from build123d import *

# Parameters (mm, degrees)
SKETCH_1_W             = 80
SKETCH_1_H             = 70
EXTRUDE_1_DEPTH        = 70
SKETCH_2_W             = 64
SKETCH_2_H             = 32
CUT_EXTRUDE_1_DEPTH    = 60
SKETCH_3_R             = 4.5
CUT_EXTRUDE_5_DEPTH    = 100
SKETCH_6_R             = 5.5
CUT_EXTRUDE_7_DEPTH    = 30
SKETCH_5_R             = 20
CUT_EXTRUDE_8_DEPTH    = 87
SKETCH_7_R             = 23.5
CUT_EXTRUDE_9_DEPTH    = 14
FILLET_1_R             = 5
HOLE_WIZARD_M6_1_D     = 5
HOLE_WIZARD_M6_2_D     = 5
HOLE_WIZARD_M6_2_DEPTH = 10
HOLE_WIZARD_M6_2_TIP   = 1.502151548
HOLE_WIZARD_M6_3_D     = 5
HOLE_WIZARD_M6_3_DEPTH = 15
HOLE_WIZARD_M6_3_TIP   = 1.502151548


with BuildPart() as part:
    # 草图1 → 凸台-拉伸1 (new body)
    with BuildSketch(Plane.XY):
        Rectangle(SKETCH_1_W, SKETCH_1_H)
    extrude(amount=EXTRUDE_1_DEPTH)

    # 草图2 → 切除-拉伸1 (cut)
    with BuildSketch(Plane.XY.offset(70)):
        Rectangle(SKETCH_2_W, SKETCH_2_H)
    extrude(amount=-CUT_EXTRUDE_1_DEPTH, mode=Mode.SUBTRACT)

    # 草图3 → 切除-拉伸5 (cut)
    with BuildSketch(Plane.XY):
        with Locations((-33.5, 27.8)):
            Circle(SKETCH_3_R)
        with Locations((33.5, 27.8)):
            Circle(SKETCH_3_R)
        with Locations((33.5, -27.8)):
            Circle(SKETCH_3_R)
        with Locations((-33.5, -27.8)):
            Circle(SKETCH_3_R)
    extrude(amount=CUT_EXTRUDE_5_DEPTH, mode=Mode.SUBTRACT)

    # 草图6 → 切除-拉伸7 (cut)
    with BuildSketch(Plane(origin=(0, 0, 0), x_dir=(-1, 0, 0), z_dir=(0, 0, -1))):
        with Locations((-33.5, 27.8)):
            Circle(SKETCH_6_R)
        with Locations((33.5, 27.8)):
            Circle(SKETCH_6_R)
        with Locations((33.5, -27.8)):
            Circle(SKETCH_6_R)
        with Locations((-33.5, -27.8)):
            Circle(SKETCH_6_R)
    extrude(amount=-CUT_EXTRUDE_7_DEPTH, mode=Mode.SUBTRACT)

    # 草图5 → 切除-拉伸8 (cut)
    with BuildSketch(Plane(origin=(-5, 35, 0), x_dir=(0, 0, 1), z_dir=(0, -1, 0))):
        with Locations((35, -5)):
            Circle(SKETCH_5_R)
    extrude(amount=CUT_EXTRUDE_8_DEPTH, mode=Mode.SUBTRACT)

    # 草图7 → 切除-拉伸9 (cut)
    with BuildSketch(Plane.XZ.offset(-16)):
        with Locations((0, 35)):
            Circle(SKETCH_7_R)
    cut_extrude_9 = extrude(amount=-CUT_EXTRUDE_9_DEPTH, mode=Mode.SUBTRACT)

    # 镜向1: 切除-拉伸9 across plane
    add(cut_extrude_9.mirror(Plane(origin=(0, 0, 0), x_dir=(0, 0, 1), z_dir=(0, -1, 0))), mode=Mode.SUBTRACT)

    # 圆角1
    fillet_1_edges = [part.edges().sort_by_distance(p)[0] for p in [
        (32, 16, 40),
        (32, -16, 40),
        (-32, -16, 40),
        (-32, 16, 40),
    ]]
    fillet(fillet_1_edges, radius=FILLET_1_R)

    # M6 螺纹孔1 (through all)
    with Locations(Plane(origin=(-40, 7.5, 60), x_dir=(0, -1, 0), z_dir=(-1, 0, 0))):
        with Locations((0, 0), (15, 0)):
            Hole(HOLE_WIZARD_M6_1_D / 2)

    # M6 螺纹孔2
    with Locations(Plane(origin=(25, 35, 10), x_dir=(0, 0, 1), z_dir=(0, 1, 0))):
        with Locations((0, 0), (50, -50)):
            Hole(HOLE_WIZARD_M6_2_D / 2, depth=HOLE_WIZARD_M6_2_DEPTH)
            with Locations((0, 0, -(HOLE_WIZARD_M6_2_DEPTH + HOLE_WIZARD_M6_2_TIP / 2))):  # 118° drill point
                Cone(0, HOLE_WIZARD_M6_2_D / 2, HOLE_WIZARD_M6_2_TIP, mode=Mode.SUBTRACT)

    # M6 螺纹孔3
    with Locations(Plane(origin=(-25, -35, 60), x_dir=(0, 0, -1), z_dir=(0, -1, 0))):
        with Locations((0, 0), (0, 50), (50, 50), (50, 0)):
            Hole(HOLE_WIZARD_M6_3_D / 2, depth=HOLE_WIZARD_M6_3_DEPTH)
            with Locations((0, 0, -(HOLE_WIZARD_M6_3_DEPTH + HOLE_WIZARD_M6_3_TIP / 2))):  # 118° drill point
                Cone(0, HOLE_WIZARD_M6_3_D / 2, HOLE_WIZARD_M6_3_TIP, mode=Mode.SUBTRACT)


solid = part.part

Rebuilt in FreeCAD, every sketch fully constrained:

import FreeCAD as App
import Part
import Sketcher
from FreeCAD import Vector


def edges_at(feature, points):
    """Names of the edges that pass closest to the given points."""
    edges = feature.Shape.Edges
    near = lambda p: min(range(len(edges)), key=lambda i: edges[i].distToShape(Part.Vertex(*p))[0])
    return sorted({f"Edge{near(p) + 1}" for p in points})


def add_polygon(sketch, points):
    """Adds a closed chain of lines whose ends are joined by coincident constraints."""
    first, n = sketch.GeometryCount, len(points)
    for a, b in zip(points, points[1:] + points[:1]):
        sketch.addGeometry(Part.LineSegment(App.Vector(*a, 0), App.Vector(*b, 0)), False)
    for i in range(n):
        sketch.addConstraint(Sketcher.Constraint("Coincident", first + i, 2, first + (i + 1) % n, 1))

doc = App.newDocument("Part")
body = doc.addObject("PartDesign::Body", "Body")

# Sketch on XY plane
sketch1 = body.newObject("Sketcher::SketchObject", "Sketch")
sketch1.AttachmentSupport = (doc.getObject("XY_Plane"), [""])
sketch1.MapMode = "FlatFace"
add_polygon(sketch1, [(-40, 35), (-40, -35), (40, -35), (40, 35)])  # lines 0-3
sketch1.addConstraint([
    Sketcher.Constraint("Vertical", 0),
    Sketcher.Constraint("Horizontal", 1),
    Sketcher.Constraint("Vertical", 2),
    Sketcher.Constraint("Horizontal", 3),
    Sketcher.Constraint("Symmetric", 0, 2, 2, 2, -1, 1),
    Sketcher.Constraint("DistanceX", 1, 1, 1, 2, 80.0),
    Sketcher.Constraint("DistanceY", 0, 2, 0, 1, 70.0),
])
pad1 = body.newObject("PartDesign::Pad", "Pad")
pad1.Profile = sketch1
pad1.Length = 70

# Sketch on XY plane
sketch2 = body.newObject("Sketcher::SketchObject", "Sketch001")
sketch2.AttachmentSupport = (doc.getObject("XY_Plane"), [""])
sketch2.MapMode = "FlatFace"
sketch2.AttachmentOffset = App.Placement(Vector(0, 0, 70), App.Rotation())
add_polygon(sketch2, [(-32, 16), (-32, -16), (32, -16), (32, 16)])  # lines 0-3
sketch2.addConstraint([
    Sketcher.Constraint("Vertical", 0),
    Sketcher.Constraint("Horizontal", 1),
    Sketcher.Constraint("Vertical", 2),
    Sketcher.Constraint("Horizontal", 3),
    Sketcher.Constraint("Symmetric", 0, 2, 2, 2, -1, 1),
    Sketcher.Constraint("DistanceX", 1, 1, 1, 2, 64.0),
    Sketcher.Constraint("DistanceY", 0, 2, 0, 1, 32.0),
])
pocket1 = body.newObject("PartDesign::Pocket", "Pocket")
pocket1.Profile = sketch2
pocket1.Length = 60

# Sketch on XY plane
sketch3 = body.newObject("Sketcher::SketchObject", "Sketch002")
sketch3.AttachmentSupport = (doc.getObject("XY_Plane"), [""])
sketch3.MapMode = "FlatFace"
sketch3.addGeometry([
    Part.Circle(Vector(-33.5, 27.8, 0), Vector(0, 0, 1), 4.5),
    Part.Circle(Vector(33.5, 27.8, 0), Vector(0, 0, 1), 4.5),
    Part.Circle(Vector(33.5, -27.8, 0), Vector(0, 0, 1), 4.5),
    Part.Circle(Vector(-33.5, -27.8, 0), Vector(0, 0, 1), 4.5),
], False)
sketch3.addConstraint([
    Sketcher.Constraint("Equal", 0, 1),
    Sketcher.Constraint("Equal", 1, 2),
    Sketcher.Constraint("Equal", 2, 3),
    Sketcher.Constraint("Symmetric", 0, 3, 2, 3, -1, 1),
    Sketcher.Constraint("Symmetric", 1, 3, 3, 3, -1, 1),
    Sketcher.Constraint("Symmetric", 0, 3, 1, 3, -2),
    Sketcher.Constraint("Diameter", 0, 9.0),
    Sketcher.Constraint("DistanceX", 0, 3, 1, 3, 67.0),
    Sketcher.Constraint("DistanceY", -1, 1, 0, 3, 27.8),
])
pocket2 = body.newObject("PartDesign::Pocket", "Pocket001")
pocket2.Profile = sketch3
pocket2.Length = 100
pocket2.Reversed = True

# Sketch on XY plane
sketch4 = body.newObject("Sketcher::SketchObject", "Sketch003")
sketch4.AttachmentSupport = (doc.getObject("XY_Plane"), [""])
sketch4.MapMode = "FlatFace"
sketch4.addGeometry([
    Part.Circle(Vector(34, 28, 0), Vector(0, 0, 1), 6),
    Part.Circle(Vector(-34, 28, 0), Vector(0, 0, 1), 6),
    Part.Circle(Vector(-34, -28, 0), Vector(0, 0, 1), 6),
    Part.Circle(Vector(34, -28, 0), Vector(0, 0, 1), 6),
], False)
sketch4.addConstraint([
    Sketcher.Constraint("Equal", 0, 1),
    Sketcher.Constraint("Equal", 1, 2),
    Sketcher.Constraint("Equal", 2, 3),
    Sketcher.Constraint("Symmetric", 0, 3, 2, 3, -1, 1),
    Sketcher.Constraint("Symmetric", 1, 3, 3, 3, -1, 1),
    Sketcher.Constraint("Symmetric", 0, 3, 1, 3, -2),
    Sketcher.Constraint("Diameter", 0, 11.0),
    Sketcher.Constraint("DistanceX", 1, 3, 0, 3, 67.0),
    Sketcher.Constraint("DistanceY", -1, 1, 0, 3, 27.8),
])
pocket3 = body.newObject("PartDesign::Pocket", "Pocket002")
pocket3.Profile = sketch4
pocket3.Length = 30
pocket3.Reversed = True

# Sketch on XZ plane
sketch5 = body.newObject("Sketcher::SketchObject", "Sketch004")
sketch5.AttachmentSupport = (doc.getObject("XZ_Plane"), [""])
sketch5.MapMode = "FlatFace"
sketch5.AttachmentOffset = App.Placement(Vector(0, 0, -35), App.Rotation())
sketch5.addGeometry(Part.Circle(Vector(0, 35, 0), Vector(0, 0, 1), 20), False)
sketch5.addConstraint([
    Sketcher.Constraint("PointOnObject", 0, 3, -2),
    Sketcher.Constraint("Diameter", 0, 40.0),
    Sketcher.Constraint("DistanceY", -1, 1, 0, 3, 35.0),
])
pocket4 = body.newObject("PartDesign::Pocket", "Pocket003")
pocket4.Profile = sketch5
pocket4.Length = 87
pocket4.Reversed = True

# Sketch on XZ plane
sketch6 = body.newObject("Sketcher::SketchObject", "Sketch005")
sketch6.AttachmentSupport = (doc.getObject("XZ_Plane"), [""])
sketch6.MapMode = "FlatFace"
sketch6.AttachmentOffset = App.Placement(Vector(0, 0, -16), App.Rotation())
sketch6.addGeometry(Part.Circle(Vector(0, 35, 0), Vector(0, 0, 1), 24), False)
sketch6.addConstraint([
    Sketcher.Constraint("PointOnObject", 0, 3, -2),
    Sketcher.Constraint("Diameter", 0, 47.0),
    Sketcher.Constraint("DistanceY", -1, 1, 0, 3, 35.0),
])
pocket5 = body.newObject("PartDesign::Pocket", "Pocket004")
pocket5.Profile = sketch6
pocket5.Length = 14
doc.recompute()

mirrored = body.newObject("PartDesign::Mirrored", "Mirrored")
mirrored.Originals = [pocket5]
mirrored.MirrorPlane = (doc.getObject("XZ_Plane"), [""])
body.Tip = mirrored
doc.recompute()

fillet = body.newObject("PartDesign::Fillet", "Fillet")
fillet.Base = (mirrored, edges_at(mirrored, [
    (32, 16, 40),
    (32, -16, 40),
    (-32, -16, 40),
    (-32, 16, 40),
]))
fillet.Radius = 5

# Sketch on YZ plane
sketch7 = body.newObject("Sketcher::SketchObject", "Sketch006")
sketch7.AttachmentSupport = (doc.getObject("YZ_Plane"), [""])
sketch7.MapMode = "FlatFace"
sketch7.AttachmentOffset = App.Placement(Vector(0, 0, -40), App.Rotation())
sketch7.addGeometry([
    Part.Circle(Vector(7.5, 60, 0), Vector(0, 0, 1), 2.5),
    Part.Circle(Vector(-7.5, 60, 0), Vector(0, 0, 1), 2.5),
], False)
sketch7.addConstraint([
    Sketcher.Constraint("Equal", 0, 1),
    Sketcher.Constraint("Symmetric", 0, 3, 1, 3, -2),
    Sketcher.Constraint("Diameter", 0, 5.0),
    Sketcher.Constraint("DistanceY", -1, 1, 0, 3, 60.0),
    Sketcher.Constraint("DistanceX", 1, 3, 0, 3, 15.0),
])
doc.recompute()
hole = body.newObject("PartDesign::Hole", "Hole")
hole.Profile = sketch7
hole.ThreadType = "None"
hole.Diameter = 5
hole.DepthType = "ThroughAll"
hole.Reversed = True

# Sketch on XZ plane
sketch8 = body.newObject("Sketcher::SketchObject", "Sketch007")
sketch8.AttachmentSupport = (doc.getObject("XZ_Plane"), [""])
sketch8.MapMode = "FlatFace"
sketch8.AttachmentOffset = App.Placement(Vector(0, 0, -35), App.Rotation())
sketch8.addGeometry([
    Part.Circle(Vector(25, 10, 0), Vector(0, 0, 1), 2.5),
    Part.Circle(Vector(-25, 60, 0), Vector(0, 0, 1), 2.5),
], False)
sketch8.addConstraint([
    Sketcher.Constraint("Equal", 0, 1),
    Sketcher.Constraint("Diameter", 0, 5.0),
    Sketcher.Constraint("DistanceX", -1, 1, 0, 3, 25.0),
    Sketcher.Constraint("DistanceY", -1, 1, 0, 3, 10.0),
    Sketcher.Constraint("DistanceX", 1, 3, -1, 1, 25.0),
    Sketcher.Constraint("DistanceY", -1, 1, 1, 3, 60.0),
])
doc.recompute()
hole2 = body.newObject("PartDesign::Hole", "Hole001")
hole2.Profile = sketch8
hole2.ThreadType = "None"
hole2.Diameter = 5
hole2.DepthType = "Dimension"
hole2.Depth = 10
hole2.DrillPoint = "Angled"
hole2.DrillPointAngle = 118
hole2.Reversed = True

# Sketch on XZ plane
sketch9 = body.newObject("Sketcher::SketchObject", "Sketch008")
sketch9.AttachmentSupport = (doc.getObject("XZ_Plane"), [""])
sketch9.MapMode = "FlatFace"
sketch9.AttachmentOffset = App.Placement(Vector(0, 0, 35), App.Rotation())
sketch9.addGeometry([
    Part.Circle(Vector(-25, 60, 0), Vector(0, 0, 1), 2.5),
    Part.Circle(Vector(25, 60, 0), Vector(0, 0, 1), 2.5),
    Part.Circle(Vector(25, 10, 0), Vector(0, 0, 1), 2.5),
    Part.Circle(Vector(-25, 10, 0), Vector(0, 0, 1), 2.5),
], False)
sketch9.addConstraint([
    Sketcher.Constraint("Equal", 0, 1),
    Sketcher.Constraint("Equal", 1, 2),
    Sketcher.Constraint("Equal", 2, 3),
    Sketcher.Constraint("Symmetric", 0, 3, 1, 3, -2),
    Sketcher.Constraint("Symmetric", 2, 3, 3, 3, -2),
    Sketcher.Constraint("Vertical", 1, 3, 2, 3),
    Sketcher.Constraint("Diameter", 0, 5.0),
    Sketcher.Constraint("DistanceX", 0, 3, -1, 1, 25.0),
    Sketcher.Constraint("DistanceY", -1, 1, 0, 3, 60.0),
    Sketcher.Constraint("DistanceY", -1, 1, 2, 3, 10.0),
])
doc.recompute()
hole3 = body.newObject("PartDesign::Hole", "Hole002")
hole3.Profile = sketch9
hole3.ThreadType = "None"
hole3.Diameter = 5
hole3.DepthType = "Dimension"
hole3.Depth = 15
hole3.DrillPoint = "Angled"
hole3.DrillPointAngle = 118

doc.recompute()
